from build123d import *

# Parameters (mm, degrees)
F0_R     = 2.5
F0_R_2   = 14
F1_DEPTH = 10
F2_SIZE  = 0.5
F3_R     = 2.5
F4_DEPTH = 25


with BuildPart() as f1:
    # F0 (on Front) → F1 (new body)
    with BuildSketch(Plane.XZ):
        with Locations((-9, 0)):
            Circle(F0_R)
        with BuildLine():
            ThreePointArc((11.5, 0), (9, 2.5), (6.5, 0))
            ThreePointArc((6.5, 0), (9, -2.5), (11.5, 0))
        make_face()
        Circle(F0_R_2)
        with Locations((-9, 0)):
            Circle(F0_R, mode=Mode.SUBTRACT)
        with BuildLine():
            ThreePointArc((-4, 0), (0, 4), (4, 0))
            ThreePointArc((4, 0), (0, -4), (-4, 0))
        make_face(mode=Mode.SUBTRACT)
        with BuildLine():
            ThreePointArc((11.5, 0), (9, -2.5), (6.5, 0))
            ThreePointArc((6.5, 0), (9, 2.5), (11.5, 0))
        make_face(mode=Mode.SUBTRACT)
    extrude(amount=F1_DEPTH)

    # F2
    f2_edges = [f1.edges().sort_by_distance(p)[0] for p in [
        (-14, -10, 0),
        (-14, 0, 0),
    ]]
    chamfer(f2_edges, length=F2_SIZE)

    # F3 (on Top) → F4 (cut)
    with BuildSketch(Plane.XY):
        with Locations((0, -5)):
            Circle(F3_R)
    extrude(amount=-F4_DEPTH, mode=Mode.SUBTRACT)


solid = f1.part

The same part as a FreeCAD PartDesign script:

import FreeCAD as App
import Part
import Sketcher
Q = App.Units.Quantity


def edges_at(feature, points):
    """Names of the edges that pass closest to the given points."""
    edges = feature.Shape.Edges
    near = lambda p: min(range(len(edges)), key=lambda i: edges[i].distToShape(Part.Vertex(*p))[0])
    return sorted({f"Edge{near(p) + 1}" for p in points})

doc = App.newDocument("Part")
body = doc.addObject("PartDesign::Body", "Body")

sketch1 = doc.addObject("Sketcher::SketchObject", "Sketch")
body.addObject(sketch1)
sketch1.AttachmentSupport = (doc.XZ_Plane, [""])
sketch1.MapMode = "FlatFace"
sketch1.addGeometry([
    Part.Circle(App.Vector(0, 0, 0), App.Vector(0, 0, 1), 14),
    Part.Circle(App.Vector(-9, 0, 0), App.Vector(0, 0, 1), 2.5),
    Part.Circle(App.Vector(0, 0, 0), App.Vector(0, 0, 1), 4),
    Part.Circle(App.Vector(9, 0, 0), App.Vector(0, 0, 1), 2.5),
], False)
sketch1.addConstraint([
    Sketcher.Constraint("Coincident", 0, 3, -1, 1),
    Sketcher.Constraint("Coincident", 2, 3, -1, 1),
    Sketcher.Constraint("Equal", 1, 3),
    Sketcher.Constraint("Symmetric", 1, 3, 3, 3, -1, 1),
    Sketcher.Constraint("PointOnObject", 1, 3, -1),
    Sketcher.Constraint("Diameter", 0, Q("28 mm")),
    Sketcher.Constraint("Diameter", 1, Q("5 mm")),
    Sketcher.Constraint("Diameter", 2, Q("8 mm")),
    Sketcher.Constraint("DistanceX", 1, 3, -1, 1, Q("9 mm")),
])
pad1 = doc.addObject("PartDesign::Pad", "Pad")
body.addObject(pad1)
pad1.Profile = sketch1
pad1.Length = 10
doc.recompute()

chamfer = doc.addObject("PartDesign::Chamfer", "Chamfer")
body.addObject(chamfer)
chamfer.Base = (pad1, edges_at(pad1, [(-14, -10, 0), (-14, 0, 0)]))
chamfer.Size = 0.5

sketch2 = doc.addObject("Sketcher::SketchObject", "Sketch001")
body.addObject(sketch2)
sketch2.AttachmentSupport = (doc.XY_Plane, [""])
sketch2.MapMode = "FlatFace"
sketch2.addGeometry(Part.Circle(App.Vector(0, -5, 0), App.Vector(0, 0, 1), 2.5), False)
sketch2.addConstraint([
    Sketcher.Constraint("PointOnObject", 0, 3, -2),
    Sketcher.Constraint("Diameter", 0, Q("5 mm")),
    Sketcher.Constraint("DistanceY", 0, 3, -1, 1, Q("5 mm")),
])
pocket1 = doc.addObject("PartDesign::Pocket", "Pocket")
body.addObject(pocket1)
pocket1.Profile = sketch2
pocket1.Length = 25

doc.recompute()
